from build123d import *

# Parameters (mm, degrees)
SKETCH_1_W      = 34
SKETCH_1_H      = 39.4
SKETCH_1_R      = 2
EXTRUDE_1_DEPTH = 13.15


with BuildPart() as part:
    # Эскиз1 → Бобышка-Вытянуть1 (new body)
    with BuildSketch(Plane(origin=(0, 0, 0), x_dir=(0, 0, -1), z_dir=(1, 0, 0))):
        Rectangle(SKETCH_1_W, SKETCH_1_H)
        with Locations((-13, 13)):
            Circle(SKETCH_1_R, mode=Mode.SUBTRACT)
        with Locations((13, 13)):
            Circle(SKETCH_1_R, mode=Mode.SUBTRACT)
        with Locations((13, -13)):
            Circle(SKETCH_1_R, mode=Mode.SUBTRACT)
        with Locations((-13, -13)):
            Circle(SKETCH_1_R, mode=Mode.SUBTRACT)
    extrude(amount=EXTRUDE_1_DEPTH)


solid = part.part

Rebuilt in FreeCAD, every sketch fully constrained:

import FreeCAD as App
import Part
import Sketcher


def add_polygon(sketch, points):
    """Adds a closed chain of lines whose ends are joined by coincident constraints."""
    first, n = sketch.GeometryCount, len(points)
    for a, b in zip(points, points[1:] + points[:1]):
        sketch.addGeometry(Part.LineSegment(App.Vector(*a, 0), App.Vector(*b, 0)), False)
    for i in range(n):
        sketch.addConstraint(Sketcher.Constraint("Coincident", first + i, 2, first + (i + 1) % n, 1))

doc = App.newDocument("Part")
body = doc.addObject("PartDesign::Body", "Body")

sketch1 = body.newObject("Sketcher::SketchObject", "Sketch")
sketch1.AttachmentSupport = (doc.getObject("YZ_Plane"), [""])
sketch1.MapMode = "FlatFace"
add_polygon(sketch1, [(19.7, 17), (-19.7, 17), (-19.7, -17), (19.7, -17)])
sketch1.addGeometry(Part.Circle(App.Vector(-13, 13, 0), App.Vector(0, 0, 1), 2), False)
sketch1.addGeometry(Part.Circle(App.Vector(-13, -13, 0), App.Vector(0, 0, 1), 2), False)
sketch1.addGeometry(Part.Circle(App.Vector(13, 13, 0), App.Vector(0, 0, 1), 2), False)
sketch1.addGeometry(Part.Circle(App.Vector(13, -13, 0), App.Vector(0, 0, 1), 2), False)
sketch1.addConstraint(Sketcher.Constraint("Horizontal", 0))
sketch1.addConstraint(Sketcher.Constraint("Vertical", 1))
sketch1.addConstraint(Sketcher.Constraint("Horizontal", 2))
sketch1.addConstraint(Sketcher.Constraint("Vertical", 3))
sketch1.addConstraint(Sketcher.Constraint("Equal", 4, 5))
sketch1.addConstraint(Sketcher.Constraint("Equal", 5, 6))
sketch1.addConstraint(Sketcher.Constraint("Equal", 6, 7))
sketch1.addConstraint(Sketcher.Constraint("Symmetric", 5, 3, 6, 3, -1, 1))
sketch1.addConstraint(Sketcher.Constraint("Symmetric", 4, 3, 7, 3, -1, 1))
sketch1.addConstraint(Sketcher.Constraint("Symmetric", 0, 2, 2, 2, -1, 1))
sketch1.addConstraint(Sketcher.Constraint("Symmetric", 4, 3, 6, 3, -2))
sketch1.addConstraint(Sketcher.Constraint("Diameter", 4, 4.0))
sketch1.addConstraint(Sketcher.Constraint("DistanceY", 1, 2, 1, 1, 34.0))
sketch1.addConstraint(Sketcher.Constraint("DistanceX", 0, 2, 0, 1, 39.4))
sketch1.addConstraint(Sketcher.Constraint("DistanceX", 4, 3, -1, 1, 13.0))
sketch1.addConstraint(Sketcher.Constraint("DistanceY", -1, 1, 4, 3, 13.0))
pad1 = body.newObject("PartDesign::Pad", "Pad")
pad1.Profile = sketch1
pad1.Length = 13.15

doc.recompute()
